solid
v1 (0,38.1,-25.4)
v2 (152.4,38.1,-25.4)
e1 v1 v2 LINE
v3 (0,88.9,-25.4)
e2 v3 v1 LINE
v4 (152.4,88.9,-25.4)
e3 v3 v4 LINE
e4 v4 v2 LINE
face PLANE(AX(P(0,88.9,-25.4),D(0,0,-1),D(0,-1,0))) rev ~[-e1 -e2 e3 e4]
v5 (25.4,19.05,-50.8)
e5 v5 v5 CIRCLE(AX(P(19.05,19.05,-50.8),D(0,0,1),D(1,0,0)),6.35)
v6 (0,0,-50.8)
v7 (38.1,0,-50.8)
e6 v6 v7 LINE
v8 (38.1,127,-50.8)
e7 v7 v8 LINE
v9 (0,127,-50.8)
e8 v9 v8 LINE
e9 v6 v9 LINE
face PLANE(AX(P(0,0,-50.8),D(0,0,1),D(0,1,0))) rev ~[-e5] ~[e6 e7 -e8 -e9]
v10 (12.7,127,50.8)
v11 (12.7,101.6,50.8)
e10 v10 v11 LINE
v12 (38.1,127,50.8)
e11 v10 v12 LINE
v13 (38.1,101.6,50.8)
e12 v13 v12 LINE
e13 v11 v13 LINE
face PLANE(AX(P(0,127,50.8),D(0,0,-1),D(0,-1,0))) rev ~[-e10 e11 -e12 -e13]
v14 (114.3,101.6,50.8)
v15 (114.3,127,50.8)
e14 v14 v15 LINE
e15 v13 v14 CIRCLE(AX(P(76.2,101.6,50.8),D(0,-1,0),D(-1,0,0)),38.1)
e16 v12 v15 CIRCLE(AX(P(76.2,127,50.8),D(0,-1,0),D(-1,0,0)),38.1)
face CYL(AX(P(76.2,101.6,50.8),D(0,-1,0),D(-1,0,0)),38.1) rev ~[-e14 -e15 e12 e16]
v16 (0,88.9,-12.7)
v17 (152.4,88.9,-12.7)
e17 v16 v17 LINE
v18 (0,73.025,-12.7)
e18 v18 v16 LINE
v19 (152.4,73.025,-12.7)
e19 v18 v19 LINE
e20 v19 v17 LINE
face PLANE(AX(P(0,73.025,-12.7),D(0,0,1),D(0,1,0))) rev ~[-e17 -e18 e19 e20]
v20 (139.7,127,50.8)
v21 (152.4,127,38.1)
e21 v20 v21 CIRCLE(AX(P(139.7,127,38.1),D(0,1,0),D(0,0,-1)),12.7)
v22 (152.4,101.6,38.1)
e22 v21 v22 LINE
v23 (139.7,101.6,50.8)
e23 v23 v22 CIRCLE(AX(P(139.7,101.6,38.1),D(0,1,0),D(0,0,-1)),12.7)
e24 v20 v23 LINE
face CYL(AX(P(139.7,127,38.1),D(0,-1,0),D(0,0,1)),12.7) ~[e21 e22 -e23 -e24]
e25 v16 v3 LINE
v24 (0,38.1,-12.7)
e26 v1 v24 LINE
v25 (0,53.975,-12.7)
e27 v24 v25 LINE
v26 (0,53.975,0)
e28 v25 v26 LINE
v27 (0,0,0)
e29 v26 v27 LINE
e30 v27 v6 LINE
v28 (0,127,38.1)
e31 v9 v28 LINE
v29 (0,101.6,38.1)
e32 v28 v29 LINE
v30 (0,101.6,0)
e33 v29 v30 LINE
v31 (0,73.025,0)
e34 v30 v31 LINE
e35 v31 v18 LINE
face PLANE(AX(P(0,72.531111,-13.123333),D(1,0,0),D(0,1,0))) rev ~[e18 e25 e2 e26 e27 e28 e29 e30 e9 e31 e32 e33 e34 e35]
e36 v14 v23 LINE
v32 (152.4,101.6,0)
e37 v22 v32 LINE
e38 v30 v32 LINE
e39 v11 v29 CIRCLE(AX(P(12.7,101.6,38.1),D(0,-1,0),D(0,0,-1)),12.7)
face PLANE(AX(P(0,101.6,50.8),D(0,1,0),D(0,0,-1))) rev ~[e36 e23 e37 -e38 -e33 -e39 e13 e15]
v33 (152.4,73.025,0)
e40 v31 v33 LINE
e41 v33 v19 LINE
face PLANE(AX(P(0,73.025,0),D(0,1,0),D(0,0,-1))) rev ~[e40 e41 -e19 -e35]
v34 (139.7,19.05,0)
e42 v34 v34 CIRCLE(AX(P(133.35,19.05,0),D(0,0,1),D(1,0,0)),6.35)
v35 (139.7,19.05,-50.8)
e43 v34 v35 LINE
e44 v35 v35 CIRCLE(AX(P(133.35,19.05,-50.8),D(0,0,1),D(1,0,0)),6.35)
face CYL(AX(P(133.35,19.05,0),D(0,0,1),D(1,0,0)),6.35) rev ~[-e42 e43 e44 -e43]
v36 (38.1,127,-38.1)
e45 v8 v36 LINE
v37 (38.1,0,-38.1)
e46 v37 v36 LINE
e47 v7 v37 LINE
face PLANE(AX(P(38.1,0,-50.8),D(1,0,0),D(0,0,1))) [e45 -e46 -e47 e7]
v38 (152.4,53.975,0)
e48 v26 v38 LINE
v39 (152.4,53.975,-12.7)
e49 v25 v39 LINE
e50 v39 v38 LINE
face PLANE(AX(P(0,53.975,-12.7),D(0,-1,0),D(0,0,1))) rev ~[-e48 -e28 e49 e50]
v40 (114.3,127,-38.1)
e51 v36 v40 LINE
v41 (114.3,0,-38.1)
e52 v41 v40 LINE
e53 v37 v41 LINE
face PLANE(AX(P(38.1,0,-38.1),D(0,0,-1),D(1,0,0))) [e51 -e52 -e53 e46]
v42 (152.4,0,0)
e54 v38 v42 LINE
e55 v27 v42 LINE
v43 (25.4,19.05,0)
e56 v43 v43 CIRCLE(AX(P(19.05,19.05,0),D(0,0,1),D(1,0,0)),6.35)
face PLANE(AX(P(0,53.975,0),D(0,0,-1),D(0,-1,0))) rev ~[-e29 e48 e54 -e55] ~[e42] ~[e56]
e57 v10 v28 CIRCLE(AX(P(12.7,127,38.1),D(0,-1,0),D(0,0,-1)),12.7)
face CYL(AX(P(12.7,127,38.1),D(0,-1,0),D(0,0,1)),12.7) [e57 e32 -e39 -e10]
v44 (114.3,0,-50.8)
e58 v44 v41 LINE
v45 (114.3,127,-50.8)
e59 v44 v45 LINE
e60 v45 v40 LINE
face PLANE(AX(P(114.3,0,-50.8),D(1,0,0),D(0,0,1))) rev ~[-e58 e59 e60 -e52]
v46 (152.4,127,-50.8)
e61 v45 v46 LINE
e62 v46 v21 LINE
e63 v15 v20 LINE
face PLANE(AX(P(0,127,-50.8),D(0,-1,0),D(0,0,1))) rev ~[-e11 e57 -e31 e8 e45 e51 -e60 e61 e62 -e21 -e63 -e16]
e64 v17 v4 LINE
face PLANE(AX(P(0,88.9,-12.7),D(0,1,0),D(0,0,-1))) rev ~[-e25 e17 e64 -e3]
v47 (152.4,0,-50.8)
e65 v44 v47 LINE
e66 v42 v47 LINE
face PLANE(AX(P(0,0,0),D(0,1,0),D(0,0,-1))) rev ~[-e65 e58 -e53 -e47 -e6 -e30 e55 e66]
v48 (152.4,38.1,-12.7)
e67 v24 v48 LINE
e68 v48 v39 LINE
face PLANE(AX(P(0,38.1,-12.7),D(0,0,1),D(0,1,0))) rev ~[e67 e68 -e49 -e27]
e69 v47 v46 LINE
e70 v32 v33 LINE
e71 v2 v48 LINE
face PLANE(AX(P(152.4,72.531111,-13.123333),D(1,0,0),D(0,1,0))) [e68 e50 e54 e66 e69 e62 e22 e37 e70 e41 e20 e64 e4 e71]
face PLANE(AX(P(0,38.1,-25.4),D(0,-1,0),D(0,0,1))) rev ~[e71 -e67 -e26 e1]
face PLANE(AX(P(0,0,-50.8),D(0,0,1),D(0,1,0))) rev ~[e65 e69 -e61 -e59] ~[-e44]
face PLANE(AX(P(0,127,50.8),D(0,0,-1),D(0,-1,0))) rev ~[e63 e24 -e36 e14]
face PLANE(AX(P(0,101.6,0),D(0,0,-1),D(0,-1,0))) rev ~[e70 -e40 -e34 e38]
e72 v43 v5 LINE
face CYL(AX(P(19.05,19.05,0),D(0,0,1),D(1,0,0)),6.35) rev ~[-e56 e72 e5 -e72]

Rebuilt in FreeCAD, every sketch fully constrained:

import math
import FreeCAD as App
import Part
import Sketcher
Q = App.Units.Quantity


def edges_at(feature, points):
    """Names of the edges that pass closest to the given points."""
    edges = feature.Shape.Edges
    near = lambda p: min(range(len(edges)), key=lambda i: edges[i].distToShape(Part.Vertex(*p))[0])
    return sorted({f"Edge{near(p) + 1}" for p in points})


def add_polygon(sketch, points):
    """Adds a closed chain of lines whose ends are joined by coincident constraints."""
    first, n = sketch.GeometryCount, len(points)
    for a, b in zip(points, points[1:] + points[:1]):
        sketch.addGeometry(Part.LineSegment(App.Vector(*a, 0), App.Vector(*b, 0)), False)
    for i in range(n):
        sketch.addConstraint(Sketcher.Constraint("Coincident", first + i, 2, first + (i + 1) % n, 1))

doc = App.newDocument("Part")
body = doc.addObject("PartDesign::Body", "Body")

# Sketch on YZ plane
sketch1 = body.newObject("Sketcher::SketchObject", "Sketch")
sketch1.AttachmentSupport = (doc.getObject("YZ_Plane"), [""])
sketch1.MapMode = "FlatFace"
add_polygon(sketch1, [(53.975, 0), (0, 0), (0, -50.8), (127, -50.8), (127, 50.8), (101.6, 50.8), (101.6, 0), (73.025, 0), (73.025, -12.7), (88.9, -12.7), (88.9, -25.4), (38.1, -25.4), (38.1, -12.7), (53.975, -12.7)])  # lines 0-13
sketch1.addConstraint([
    Sketcher.Constraint("Horizontal", 0),
    Sketcher.Constraint("Vertical", 1),
    Sketcher.Constraint("Horizontal", 2),
    Sketcher.Constraint("Vertical", 3),
    Sketcher.Constraint("Horizontal", 4),
    Sketcher.Constraint("Vertical", 5),
    Sketcher.Constraint("Horizontal", 6),
    Sketcher.Constraint("Vertical", 7),
    Sketcher.Constraint("Horizontal", 8),
    Sketcher.Constraint("Vertical", 9),
    Sketcher.Constraint("Horizontal", 10),
    Sketcher.Constraint("Vertical", 11),
    Sketcher.Constraint("Horizontal", 12),
    Sketcher.Constraint("Vertical", 13),
    Sketcher.Constraint("Coincident", 0, 2, -1, 1),
    Sketcher.Constraint("PointOnObject", 5, 2, -1),
    Sketcher.Constraint("Horizontal", 8, 2, 11, 2),
    Sketcher.Constraint("Equal", 8, 12),
    Sketcher.Constraint("Equal", 10, 1),
    Sketcher.Constraint("Equal", 1, 5),
    Sketcher.Constraint("Equal", 7, 9),
    Sketcher.Constraint("DistanceX", 2, 1, 2, 2, Q("5 in")),
    Sketcher.Constraint("DistanceX", 4, 2, 4, 1, Q("1 in")),
    Sketcher.Constraint("DistanceX", 10, 2, 10, 1, Q("2 in")),
    Sketcher.Constraint("DistanceY", 7, 2, 7, 1, Q("0.5 in")),
    Sketcher.Constraint("DistanceX", -1, 1, 8, 2, Q("3.5 in")),
    Sketcher.Constraint("DistanceX", 0, 2, 0, 1, Q("2.125 in")),
])
pad1 = body.newObject("PartDesign::Pad", "Pad")
pad1.Profile = sketch1
pad1.Length = Q("6 in")
doc.recompute()

fillet = body.newObject("PartDesign::Fillet", "Fillet")
fillet.Base = (pad1, edges_at(pad1, [(152.4, 114.3, 50.8), (0, 114.3, 50.8)]))
fillet.Radius = Q("0.5 in")

# Sketch on XZ plane
sketch2 = body.newObject("Sketcher::SketchObject", "Sketch001")
sketch2.AttachmentSupport = (doc.getObject("XZ_Plane"), [""])
sketch2.MapMode = "FlatFace"
sketch2.AttachmentOffset = App.Placement(App.Vector(0, 0, -4 * 25.4), App.Rotation())
sketch2.addGeometry([
    Part.ArcOfCircle(Part.Circle(App.Vector(76.2, 50.8, 0), App.Vector(0, 0, 1), 38.1), math.radians(180), math.radians(360)),
    Part.LineSegment(App.Vector(114.3, 50.8, 0), App.Vector(38.1, 50.8, 0)),
], False)
sketch2.addConstraint([
    Sketcher.Constraint("Coincident", 0, 1, 1, 2),
    Sketcher.Constraint("Coincident", 1, 1, 0, 2),
    Sketcher.Constraint("Horizontal", 1),
    Sketcher.Constraint("Radius", 0, Q("1.5 in")),
    Sketcher.Constraint("DistanceX", -1, 1, 0, 3, Q("3 in")),
    Sketcher.Constraint("DistanceY", -1, 1, 0, 3, Q("2 in")),
    Sketcher.Constraint("DistanceY", -1, 1, 0, 1, Q("2 in")),
])
pocket1 = body.newObject("PartDesign::Pocket", "Pocket")
pocket1.Profile = sketch2
pocket1.Length = Q("1 in")

# Sketch on XZ plane
sketch3 = body.newObject("Sketcher::SketchObject", "Sketch002")
sketch3.AttachmentSupport = (doc.getObject("XZ_Plane"), [""])
sketch3.MapMode = "FlatFace"
add_polygon(sketch3, [(38.1, -38.1), (38.1, -50.8), (114.3, -50.8), (114.3, -38.1)])  # lines 0-3
sketch3.addConstraint([
    Sketcher.Constraint("Vertical", 0),
    Sketcher.Constraint("Horizontal", 1),
    Sketcher.Constraint("Vertical", 2),
    Sketcher.Constraint("Horizontal", 3),
    Sketcher.Constraint("DistanceX", 1, 1, 1, 2, Q("3 in")),
    Sketcher.Constraint("DistanceY", 0, 2, 0, 1, Q("0.5 in")),
    Sketcher.Constraint("DistanceY", 0, 2, -1, 1, Q("2 in")),
    Sketcher.Constraint("DistanceX", -1, 1, 0, 2, Q("1.5 in")),
])
pocket2 = body.newObject("PartDesign::Pocket", "Pocket001")
pocket2.Profile = sketch3
pocket2.Type = "ThroughAll"

# Sketch on XY plane
sketch4 = body.newObject("Sketcher::SketchObject", "Sketch003")
sketch4.AttachmentSupport = (doc.getObject("XY_Plane"), [""])
sketch4.MapMode = "FlatFace"
sketch4.addGeometry([
    Part.Circle(App.Vector(19.05, 19.05, 0), App.Vector(0, 0, 1), 6.35),
    Part.Circle(App.Vector(133.35, 19.05, 0), App.Vector(0, 0, 1), 6.35),
], False)
sketch4.addConstraint([
    Sketcher.Constraint("Equal", 0, 1),
    Sketcher.Constraint("Horizontal", 0, 3, 1, 3),
    Sketcher.Constraint("Diameter", 0, Q("0.5 in")),
    Sketcher.Constraint("DistanceX", 0, 3, 1, 3, Q("4.5 in")),
    Sketcher.Constraint("DistanceX", -1, 1, 0, 3, Q("0.75 in")),
    Sketcher.Constraint("DistanceY", -1, 1, 0, 3, Q("0.75 in")),
])
pocket3 = body.newObject("PartDesign::Pocket", "Pocket002")
pocket3.Profile = sketch4
pocket3.Type = "ThroughAll"

doc.recompute()
